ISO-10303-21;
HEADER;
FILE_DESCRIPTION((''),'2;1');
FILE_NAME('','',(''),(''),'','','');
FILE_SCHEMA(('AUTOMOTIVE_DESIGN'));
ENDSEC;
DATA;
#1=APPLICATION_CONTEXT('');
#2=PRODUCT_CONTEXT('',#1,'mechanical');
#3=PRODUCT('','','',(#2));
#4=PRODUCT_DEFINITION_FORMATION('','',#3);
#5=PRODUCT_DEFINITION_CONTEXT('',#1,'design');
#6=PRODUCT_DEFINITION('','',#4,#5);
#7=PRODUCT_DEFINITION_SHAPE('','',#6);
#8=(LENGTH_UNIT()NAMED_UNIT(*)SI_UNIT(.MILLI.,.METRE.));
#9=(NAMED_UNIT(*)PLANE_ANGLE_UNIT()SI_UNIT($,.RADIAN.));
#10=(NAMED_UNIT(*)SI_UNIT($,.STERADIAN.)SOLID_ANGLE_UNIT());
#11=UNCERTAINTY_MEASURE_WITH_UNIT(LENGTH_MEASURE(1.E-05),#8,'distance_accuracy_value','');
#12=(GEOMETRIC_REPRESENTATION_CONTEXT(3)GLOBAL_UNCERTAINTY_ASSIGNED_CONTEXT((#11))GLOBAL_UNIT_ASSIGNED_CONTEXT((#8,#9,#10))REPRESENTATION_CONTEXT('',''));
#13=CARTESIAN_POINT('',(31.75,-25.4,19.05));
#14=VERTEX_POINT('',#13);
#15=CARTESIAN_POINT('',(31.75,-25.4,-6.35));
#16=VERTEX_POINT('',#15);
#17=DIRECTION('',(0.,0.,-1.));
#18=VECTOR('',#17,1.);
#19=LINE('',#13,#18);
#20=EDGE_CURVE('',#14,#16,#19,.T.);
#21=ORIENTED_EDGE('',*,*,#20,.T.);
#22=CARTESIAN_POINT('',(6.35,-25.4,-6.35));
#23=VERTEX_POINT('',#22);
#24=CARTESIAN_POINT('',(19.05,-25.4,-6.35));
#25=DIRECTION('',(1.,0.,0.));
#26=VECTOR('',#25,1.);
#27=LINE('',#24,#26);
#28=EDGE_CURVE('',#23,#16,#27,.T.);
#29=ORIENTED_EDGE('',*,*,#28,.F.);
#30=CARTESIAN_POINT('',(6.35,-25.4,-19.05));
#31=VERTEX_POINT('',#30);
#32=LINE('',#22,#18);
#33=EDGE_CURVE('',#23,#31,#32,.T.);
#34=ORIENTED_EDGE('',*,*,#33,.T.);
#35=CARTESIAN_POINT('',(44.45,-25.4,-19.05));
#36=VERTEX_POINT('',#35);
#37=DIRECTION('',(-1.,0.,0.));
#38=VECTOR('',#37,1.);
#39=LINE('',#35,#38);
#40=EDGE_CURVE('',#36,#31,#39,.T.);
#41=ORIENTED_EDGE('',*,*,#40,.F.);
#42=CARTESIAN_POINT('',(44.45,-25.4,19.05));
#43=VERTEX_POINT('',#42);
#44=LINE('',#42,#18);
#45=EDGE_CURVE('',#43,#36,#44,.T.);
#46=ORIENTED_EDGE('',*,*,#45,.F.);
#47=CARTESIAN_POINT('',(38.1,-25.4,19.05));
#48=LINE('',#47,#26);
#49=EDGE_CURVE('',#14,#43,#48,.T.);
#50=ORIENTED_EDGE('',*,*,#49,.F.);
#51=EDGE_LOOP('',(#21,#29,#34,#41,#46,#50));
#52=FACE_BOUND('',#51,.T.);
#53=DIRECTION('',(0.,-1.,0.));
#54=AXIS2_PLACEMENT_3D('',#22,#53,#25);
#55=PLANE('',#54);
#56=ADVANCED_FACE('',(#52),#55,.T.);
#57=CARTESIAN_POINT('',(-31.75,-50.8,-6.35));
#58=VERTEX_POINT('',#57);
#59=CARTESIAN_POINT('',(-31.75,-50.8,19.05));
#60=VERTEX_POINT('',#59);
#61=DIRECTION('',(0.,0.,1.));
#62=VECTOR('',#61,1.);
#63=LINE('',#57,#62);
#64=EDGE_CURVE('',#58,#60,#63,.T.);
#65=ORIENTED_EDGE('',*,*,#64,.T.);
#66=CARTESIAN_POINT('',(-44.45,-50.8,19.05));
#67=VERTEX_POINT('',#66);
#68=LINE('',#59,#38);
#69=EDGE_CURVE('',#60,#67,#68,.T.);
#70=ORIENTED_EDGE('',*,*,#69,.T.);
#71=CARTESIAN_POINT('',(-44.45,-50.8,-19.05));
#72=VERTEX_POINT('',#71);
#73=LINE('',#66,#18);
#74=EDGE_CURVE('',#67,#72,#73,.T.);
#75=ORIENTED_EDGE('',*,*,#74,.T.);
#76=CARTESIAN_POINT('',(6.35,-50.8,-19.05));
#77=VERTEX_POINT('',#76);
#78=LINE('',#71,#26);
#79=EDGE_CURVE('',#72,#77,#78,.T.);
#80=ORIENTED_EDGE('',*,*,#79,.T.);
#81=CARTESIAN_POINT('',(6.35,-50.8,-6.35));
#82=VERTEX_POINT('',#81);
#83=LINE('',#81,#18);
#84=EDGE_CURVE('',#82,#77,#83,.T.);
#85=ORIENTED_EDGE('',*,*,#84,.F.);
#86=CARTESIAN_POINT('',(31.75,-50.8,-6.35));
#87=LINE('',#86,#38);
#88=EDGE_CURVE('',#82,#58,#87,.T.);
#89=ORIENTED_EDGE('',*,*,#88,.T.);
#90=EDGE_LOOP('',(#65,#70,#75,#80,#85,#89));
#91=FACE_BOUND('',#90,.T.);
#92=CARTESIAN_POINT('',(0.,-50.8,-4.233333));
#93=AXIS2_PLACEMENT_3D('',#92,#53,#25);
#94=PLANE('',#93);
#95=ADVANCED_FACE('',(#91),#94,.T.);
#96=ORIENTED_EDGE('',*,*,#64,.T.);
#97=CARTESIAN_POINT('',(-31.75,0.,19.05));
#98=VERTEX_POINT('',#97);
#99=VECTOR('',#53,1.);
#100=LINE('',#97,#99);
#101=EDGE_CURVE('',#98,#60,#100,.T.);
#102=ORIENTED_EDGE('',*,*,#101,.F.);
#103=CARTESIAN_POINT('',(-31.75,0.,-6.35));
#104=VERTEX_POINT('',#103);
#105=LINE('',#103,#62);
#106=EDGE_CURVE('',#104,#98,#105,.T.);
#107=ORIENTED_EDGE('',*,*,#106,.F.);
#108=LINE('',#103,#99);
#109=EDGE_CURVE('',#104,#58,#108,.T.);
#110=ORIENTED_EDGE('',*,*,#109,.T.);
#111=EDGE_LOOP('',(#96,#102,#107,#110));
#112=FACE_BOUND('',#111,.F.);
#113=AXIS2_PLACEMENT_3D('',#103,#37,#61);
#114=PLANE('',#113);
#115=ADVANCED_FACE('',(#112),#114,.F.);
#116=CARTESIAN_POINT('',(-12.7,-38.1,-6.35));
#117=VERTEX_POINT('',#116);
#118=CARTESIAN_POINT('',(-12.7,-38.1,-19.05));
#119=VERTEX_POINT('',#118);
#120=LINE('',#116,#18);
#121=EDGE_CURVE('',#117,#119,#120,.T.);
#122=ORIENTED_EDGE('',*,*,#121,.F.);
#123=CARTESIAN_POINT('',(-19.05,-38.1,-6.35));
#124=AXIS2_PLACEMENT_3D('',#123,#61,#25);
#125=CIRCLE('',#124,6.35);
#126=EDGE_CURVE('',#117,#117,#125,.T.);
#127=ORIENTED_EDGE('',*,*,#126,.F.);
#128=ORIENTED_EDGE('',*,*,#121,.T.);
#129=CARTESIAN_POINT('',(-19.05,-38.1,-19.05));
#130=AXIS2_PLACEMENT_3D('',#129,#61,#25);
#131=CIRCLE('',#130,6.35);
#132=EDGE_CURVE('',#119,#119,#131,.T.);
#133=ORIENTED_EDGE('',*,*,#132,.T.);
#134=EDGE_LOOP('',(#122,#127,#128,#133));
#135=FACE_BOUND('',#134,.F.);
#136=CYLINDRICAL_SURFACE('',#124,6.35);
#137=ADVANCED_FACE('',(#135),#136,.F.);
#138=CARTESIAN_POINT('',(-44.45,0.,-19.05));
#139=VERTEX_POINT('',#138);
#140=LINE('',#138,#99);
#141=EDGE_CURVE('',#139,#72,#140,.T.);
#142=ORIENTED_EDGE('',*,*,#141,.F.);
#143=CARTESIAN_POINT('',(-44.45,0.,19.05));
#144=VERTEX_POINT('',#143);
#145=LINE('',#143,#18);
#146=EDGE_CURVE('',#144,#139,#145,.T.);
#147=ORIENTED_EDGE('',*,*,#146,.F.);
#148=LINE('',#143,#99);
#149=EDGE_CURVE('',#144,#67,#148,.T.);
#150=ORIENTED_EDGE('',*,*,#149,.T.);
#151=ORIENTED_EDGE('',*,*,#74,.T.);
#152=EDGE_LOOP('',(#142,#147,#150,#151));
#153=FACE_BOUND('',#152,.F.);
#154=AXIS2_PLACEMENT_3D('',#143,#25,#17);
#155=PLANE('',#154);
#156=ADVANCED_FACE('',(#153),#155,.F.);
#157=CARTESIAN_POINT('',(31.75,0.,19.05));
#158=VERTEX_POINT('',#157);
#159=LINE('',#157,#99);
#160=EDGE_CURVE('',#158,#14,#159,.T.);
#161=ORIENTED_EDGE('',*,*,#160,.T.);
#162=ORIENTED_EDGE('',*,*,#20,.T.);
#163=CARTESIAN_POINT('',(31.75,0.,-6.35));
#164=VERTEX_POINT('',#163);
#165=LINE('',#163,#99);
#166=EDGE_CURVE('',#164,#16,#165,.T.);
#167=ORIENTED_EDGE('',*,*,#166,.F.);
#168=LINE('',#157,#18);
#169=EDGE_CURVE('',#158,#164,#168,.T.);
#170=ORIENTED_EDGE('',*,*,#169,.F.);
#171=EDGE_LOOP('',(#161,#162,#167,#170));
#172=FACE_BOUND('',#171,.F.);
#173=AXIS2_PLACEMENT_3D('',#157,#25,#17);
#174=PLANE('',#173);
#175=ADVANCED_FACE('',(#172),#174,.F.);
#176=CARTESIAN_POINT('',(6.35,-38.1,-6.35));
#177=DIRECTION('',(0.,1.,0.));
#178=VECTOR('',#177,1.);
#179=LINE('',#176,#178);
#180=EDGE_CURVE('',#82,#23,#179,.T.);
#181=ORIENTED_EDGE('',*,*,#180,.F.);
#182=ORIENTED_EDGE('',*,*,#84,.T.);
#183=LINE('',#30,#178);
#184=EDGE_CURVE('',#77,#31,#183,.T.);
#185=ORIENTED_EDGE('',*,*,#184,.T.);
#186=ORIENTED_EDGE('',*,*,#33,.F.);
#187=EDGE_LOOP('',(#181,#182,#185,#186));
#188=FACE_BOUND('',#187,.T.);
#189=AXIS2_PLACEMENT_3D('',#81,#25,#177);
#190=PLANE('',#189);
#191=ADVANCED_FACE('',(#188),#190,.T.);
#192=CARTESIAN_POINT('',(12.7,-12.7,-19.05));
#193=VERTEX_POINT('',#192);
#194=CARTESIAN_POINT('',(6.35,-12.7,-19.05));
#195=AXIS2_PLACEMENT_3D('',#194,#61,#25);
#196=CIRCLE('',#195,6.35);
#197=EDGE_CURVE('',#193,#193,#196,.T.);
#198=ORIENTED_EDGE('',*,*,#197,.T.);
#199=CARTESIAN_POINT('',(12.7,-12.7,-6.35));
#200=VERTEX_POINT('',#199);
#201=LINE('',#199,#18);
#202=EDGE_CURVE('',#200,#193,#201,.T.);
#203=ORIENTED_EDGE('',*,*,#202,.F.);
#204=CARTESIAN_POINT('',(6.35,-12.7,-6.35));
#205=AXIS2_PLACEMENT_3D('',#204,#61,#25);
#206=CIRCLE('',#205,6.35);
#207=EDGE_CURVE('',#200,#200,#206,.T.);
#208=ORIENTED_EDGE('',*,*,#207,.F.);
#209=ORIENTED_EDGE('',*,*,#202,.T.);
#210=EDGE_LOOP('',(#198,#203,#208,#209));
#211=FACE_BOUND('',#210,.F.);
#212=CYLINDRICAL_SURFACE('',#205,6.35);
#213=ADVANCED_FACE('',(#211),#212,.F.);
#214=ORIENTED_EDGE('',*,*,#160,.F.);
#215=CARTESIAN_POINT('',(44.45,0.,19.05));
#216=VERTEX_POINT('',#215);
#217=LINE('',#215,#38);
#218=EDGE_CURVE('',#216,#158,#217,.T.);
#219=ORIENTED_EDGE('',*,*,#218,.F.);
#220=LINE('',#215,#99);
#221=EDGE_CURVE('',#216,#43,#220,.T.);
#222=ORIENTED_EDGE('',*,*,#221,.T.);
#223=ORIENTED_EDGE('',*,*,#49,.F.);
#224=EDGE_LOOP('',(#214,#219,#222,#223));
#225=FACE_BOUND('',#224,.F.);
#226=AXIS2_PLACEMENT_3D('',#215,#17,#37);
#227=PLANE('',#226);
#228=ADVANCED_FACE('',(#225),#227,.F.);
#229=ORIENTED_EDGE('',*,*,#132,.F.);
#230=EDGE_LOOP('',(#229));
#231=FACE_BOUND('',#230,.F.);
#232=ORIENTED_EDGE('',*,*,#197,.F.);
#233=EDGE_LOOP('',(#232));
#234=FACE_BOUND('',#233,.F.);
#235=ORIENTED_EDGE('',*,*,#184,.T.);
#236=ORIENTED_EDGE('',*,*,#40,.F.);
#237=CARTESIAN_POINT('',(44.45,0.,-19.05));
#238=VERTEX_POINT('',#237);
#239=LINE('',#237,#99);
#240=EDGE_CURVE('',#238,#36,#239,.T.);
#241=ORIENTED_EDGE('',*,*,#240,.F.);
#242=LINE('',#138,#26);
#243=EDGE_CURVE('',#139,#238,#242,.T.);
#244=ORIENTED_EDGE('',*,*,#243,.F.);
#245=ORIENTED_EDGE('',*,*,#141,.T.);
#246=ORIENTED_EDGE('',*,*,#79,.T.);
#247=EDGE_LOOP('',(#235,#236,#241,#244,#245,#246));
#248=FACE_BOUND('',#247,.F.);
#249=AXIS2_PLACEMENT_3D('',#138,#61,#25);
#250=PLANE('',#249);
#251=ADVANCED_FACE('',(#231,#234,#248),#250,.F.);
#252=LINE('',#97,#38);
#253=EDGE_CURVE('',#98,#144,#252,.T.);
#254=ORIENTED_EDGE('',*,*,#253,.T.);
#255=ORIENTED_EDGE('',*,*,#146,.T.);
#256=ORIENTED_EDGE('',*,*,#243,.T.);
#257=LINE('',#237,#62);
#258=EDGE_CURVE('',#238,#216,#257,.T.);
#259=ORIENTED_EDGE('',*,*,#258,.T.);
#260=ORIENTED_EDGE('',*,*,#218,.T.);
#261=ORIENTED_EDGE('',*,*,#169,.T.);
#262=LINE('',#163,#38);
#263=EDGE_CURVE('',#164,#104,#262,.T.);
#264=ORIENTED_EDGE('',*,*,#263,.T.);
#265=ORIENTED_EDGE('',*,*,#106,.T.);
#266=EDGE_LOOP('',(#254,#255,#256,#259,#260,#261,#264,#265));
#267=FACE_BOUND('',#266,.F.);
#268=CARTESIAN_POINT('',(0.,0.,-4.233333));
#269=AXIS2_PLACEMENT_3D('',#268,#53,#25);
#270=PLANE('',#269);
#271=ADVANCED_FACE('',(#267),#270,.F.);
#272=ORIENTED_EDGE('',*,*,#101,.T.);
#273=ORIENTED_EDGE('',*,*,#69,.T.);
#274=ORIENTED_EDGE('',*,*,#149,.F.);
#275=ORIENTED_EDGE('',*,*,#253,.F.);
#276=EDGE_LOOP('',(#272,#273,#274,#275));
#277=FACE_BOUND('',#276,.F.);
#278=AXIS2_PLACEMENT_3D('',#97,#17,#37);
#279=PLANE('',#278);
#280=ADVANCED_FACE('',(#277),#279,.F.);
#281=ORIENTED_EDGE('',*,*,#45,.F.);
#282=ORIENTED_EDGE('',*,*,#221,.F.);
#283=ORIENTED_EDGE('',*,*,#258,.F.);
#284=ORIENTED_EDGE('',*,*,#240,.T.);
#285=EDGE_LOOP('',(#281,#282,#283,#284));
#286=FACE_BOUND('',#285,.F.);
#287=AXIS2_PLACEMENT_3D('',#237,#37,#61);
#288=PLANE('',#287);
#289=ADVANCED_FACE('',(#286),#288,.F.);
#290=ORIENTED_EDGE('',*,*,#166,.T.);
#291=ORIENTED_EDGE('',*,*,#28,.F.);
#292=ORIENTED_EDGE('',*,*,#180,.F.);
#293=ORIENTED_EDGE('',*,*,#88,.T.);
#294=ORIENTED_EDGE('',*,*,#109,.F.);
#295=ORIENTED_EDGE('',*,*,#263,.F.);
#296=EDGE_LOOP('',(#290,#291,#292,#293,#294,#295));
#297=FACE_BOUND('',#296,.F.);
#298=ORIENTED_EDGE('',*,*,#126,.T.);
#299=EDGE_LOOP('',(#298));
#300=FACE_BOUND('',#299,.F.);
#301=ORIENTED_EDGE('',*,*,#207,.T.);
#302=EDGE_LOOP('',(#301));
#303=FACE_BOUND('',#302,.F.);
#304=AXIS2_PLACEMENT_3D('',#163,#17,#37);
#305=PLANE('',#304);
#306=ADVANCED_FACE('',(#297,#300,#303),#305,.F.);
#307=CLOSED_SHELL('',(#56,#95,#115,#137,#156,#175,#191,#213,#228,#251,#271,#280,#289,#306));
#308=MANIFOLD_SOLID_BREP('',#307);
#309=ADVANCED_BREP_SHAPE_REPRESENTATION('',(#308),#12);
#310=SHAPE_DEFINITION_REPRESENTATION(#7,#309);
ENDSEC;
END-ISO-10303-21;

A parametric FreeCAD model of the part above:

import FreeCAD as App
import Part
import Sketcher
Q = App.Units.Quantity

doc = App.newDocument("Part")
body = doc.addObject("PartDesign::Body", "Body")

# Sketch on XZ plane
sketch1 = body.newObject("Sketcher::SketchObject", "Sketch")
sketch1.AttachmentSupport = (doc.getObject("XZ_Plane"), [""])
sketch1.MapMode = "FlatFace"
sketch1.addGeometry([
    Part.LineSegment(App.Vector(-32, 19, 0), App.Vector(-44, 19, 0)),  # 0
    Part.LineSegment(App.Vector(-44, 19, 0), App.Vector(-44, -19, 0)),  # 1
    Part.LineSegment(App.Vector(-44, -19, 0), App.Vector(44, -19, 0)),  # 2
    Part.LineSegment(App.Vector(44, -19, 0), App.Vector(44, 19, 0)),  # 3
    Part.LineSegment(App.Vector(44, 19, 0), App.Vector(32, 19, 0)),  # 4
    Part.LineSegment(App.Vector(32, 19, 0), App.Vector(32, -6, 0)),  # 5
    Part.LineSegment(App.Vector(32, -6, 0), App.Vector(-32, -6, 0)),  # 6
    Part.LineSegment(App.Vector(-32, -6, 0), App.Vector(-32, 19, 0)),  # 7
], False)
sketch1.addConstraint([
    Sketcher.Constraint("Coincident", 0, 2, 1, 1),
    Sketcher.Constraint("Coincident", 1, 2, 2, 1),
    Sketcher.Constraint("Coincident", 2, 2, 3, 1),
    Sketcher.Constraint("Coincident", 3, 2, 4, 1),
    Sketcher.Constraint("Coincident", 4, 2, 5, 1),
    Sketcher.Constraint("Coincident", 5, 2, 6, 1),
    Sketcher.Constraint("Coincident", 6, 2, 7, 1),
    Sketcher.Constraint("Coincident", 7, 2, 0, 1),
    Sketcher.Constraint("Horizontal", 0),
    Sketcher.Constraint("Vertical", 1),
    Sketcher.Constraint("Horizontal", 2),
    Sketcher.Constraint("Vertical", 3),
    Sketcher.Constraint("Horizontal", 4),
    Sketcher.Constraint("Vertical", 5),
    Sketcher.Constraint("Horizontal", 6),
    Sketcher.Constraint("Vertical", 7),
    Sketcher.Constraint("Symmetric", 0, 2, 2, 2, -1, 1),
    Sketcher.Constraint("Symmetric", 4, 2, 7, 2, -2),
    Sketcher.Constraint("DistanceY", 5, 2, 5, 1, Q("1 in")),
    Sketcher.Constraint("DistanceX", 0, 2, 0, 1, Q("0.5 in")),
    Sketcher.Constraint("DistanceX", 2, 1, 2, 2, Q("3.5 in")),
    Sketcher.Constraint("DistanceY", 1, 2, 1, 1, Q("1.5 in")),
])
pad1 = body.newObject("PartDesign::Pad", "Pad")
pad1.Profile = sketch1
pad1.Length = Q("2 in")

# Sketch on XY plane
sketch2 = body.newObject("Sketcher::SketchObject", "Sketch001")
sketch2.AttachmentSupport = (doc.getObject("XY_Plane"), [""])
sketch2.MapMode = "FlatFace"
sketch2.AttachmentOffset = App.Placement(App.Vector(0, 0, -0.25 * 25.4), App.Rotation())
sketch2.addGeometry([
    Part.LineSegment(App.Vector(6, -25, 0), App.Vector(6, -51, 0)),
    Part.LineSegment(App.Vector(6, -51, 0), App.Vector(32, -51, 0)),
    Part.LineSegment(App.Vector(32, -51, 0), App.Vector(32, -25, 0)),
    Part.LineSegment(App.Vector(32, -25, 0), App.Vector(6, -25, 0)),
], False)
sketch2.addConstraint([
    Sketcher.Constraint("Coincident", 0, 2, 1, 1),
    Sketcher.Constraint("Coincident", 1, 2, 2, 1),
    Sketcher.Constraint("Coincident", 2, 2, 3, 1),
    Sketcher.Constraint("Coincident", 3, 2, 0, 1),
    Sketcher.Constraint("Vertical", 0),
    Sketcher.Constraint("Horizontal", 1),
    Sketcher.Constraint("Vertical", 2),
    Sketcher.Constraint("Horizontal", 3),
    Sketcher.Constraint("Equal", 3, 0),
    Sketcher.Constraint("DistanceX", 1, 1, 1, 2, Q("1 in")),
    Sketcher.Constraint("DistanceY", 0, 2, -1, 1, Q("2 in")),
    Sketcher.Constraint("DistanceX", -1, 1, 0, 2, Q("0.25 in")),
])
pocket1 = body.newObject("PartDesign::Pocket", "Pocket")
pocket1.Profile = sketch2
pocket1.Type = "ThroughAll"

# Sketch on XY plane
sketch3 = body.newObject("Sketcher::SketchObject", "Sketch002")
sketch3.AttachmentSupport = (doc.getObject("XY_Plane"), [""])
sketch3.MapMode = "FlatFace"
sketch3.AttachmentOffset = App.Placement(App.Vector(0, 0, 0.75 * 25.4), App.Rotation())
sketch3.addGeometry([
    Part.LineSegment(App.Vector(32, -25, 0), App.Vector(32, -51, 0)),
    Part.LineSegment(App.Vector(32, -51, 0), App.Vector(44, -51, 0)),
    Part.LineSegment(App.Vector(44, -51, 0), App.Vector(44, -25, 0)),
    Part.LineSegment(App.Vector(44, -25, 0), App.Vector(32, -25, 0)),
], False)
sketch3.addConstraint([
    Sketcher.Constraint("Coincident", 0, 2, 1, 1),
    Sketcher.Constraint("Coincident", 1, 2, 2, 1),
    Sketcher.Constraint("Coincident", 2, 2, 3, 1),
    Sketcher.Constraint("Coincident", 3, 2, 0, 1),
    Sketcher.Constraint("Vertical", 0),
    Sketcher.Constraint("Horizontal", 1),
    Sketcher.Constraint("Vertical", 2),
    Sketcher.Constraint("Horizontal", 3),
    Sketcher.Constraint("DistanceY", 0, 2, 0, 1, Q("1 in")),
    Sketcher.Constraint("DistanceX", 1, 1, 1, 2, Q("0.5 in")),
    Sketcher.Constraint("DistanceY", 0, 2, -1, 1, Q("2 in")),
    Sketcher.Constraint("DistanceX", -1, 1, 0, 2, Q("1.25 in")),
])
pocket2 = body.newObject("PartDesign::Pocket", "Pocket001")
pocket2.Profile = sketch3
pocket2.Type = "ThroughAll"

# Sketch on XY plane
sketch4 = body.newObject("Sketcher::SketchObject", "Sketch003")
sketch4.AttachmentSupport = (doc.getObject("XY_Plane"), [""])
sketch4.MapMode = "FlatFace"
sketch4.AttachmentOffset = App.Placement(App.Vector(0, 0, -0.25 * 25.4), App.Rotation())
sketch4.addGeometry(Part.Circle(App.Vector(6, -13, 0), App.Vector(0, 0, 1), 6), False)
sketch4.addConstraint([
    Sketcher.Constraint("Diameter", 0, Q("0.5 in")),
    Sketcher.Constraint("DistanceY", 0, 3, -1, 1, Q("0.5 in")),
    Sketcher.Constraint("DistanceX", -1, 1, 0, 3, Q("0.25 in")),
])
pocket3 = body.newObject("PartDesign::Pocket", "Pocket002")
pocket3.Profile = sketch4
pocket3.Type = "ThroughAll"

# Sketch on XY plane
sketch5 = body.newObject("Sketcher::SketchObject", "Sketch004")
sketch5.AttachmentSupport = (doc.getObject("XY_Plane"), [""])
sketch5.MapMode = "FlatFace"
sketch5.AttachmentOffset = App.Placement(App.Vector(0, 0, -0.25 * 25.4), App.Rotation())
sketch5.addGeometry(Part.Circle(App.Vector(-19, -38, 0), App.Vector(0, 0, 1), 6), False)
sketch5.addConstraint([
    Sketcher.Constraint("Diameter", 0, Q("0.5 in")),
    Sketcher.Constraint("DistanceY", 0, 3, -1, 1, Q("1.5 in")),
    Sketcher.Constraint("DistanceX", 0, 3, -1, 1, Q("0.75 in")),
])
pocket4 = body.newObject("PartDesign::Pocket", "Pocket003")
pocket4.Profile = sketch5
pocket4.Type = "ThroughAll"

doc.recompute()
